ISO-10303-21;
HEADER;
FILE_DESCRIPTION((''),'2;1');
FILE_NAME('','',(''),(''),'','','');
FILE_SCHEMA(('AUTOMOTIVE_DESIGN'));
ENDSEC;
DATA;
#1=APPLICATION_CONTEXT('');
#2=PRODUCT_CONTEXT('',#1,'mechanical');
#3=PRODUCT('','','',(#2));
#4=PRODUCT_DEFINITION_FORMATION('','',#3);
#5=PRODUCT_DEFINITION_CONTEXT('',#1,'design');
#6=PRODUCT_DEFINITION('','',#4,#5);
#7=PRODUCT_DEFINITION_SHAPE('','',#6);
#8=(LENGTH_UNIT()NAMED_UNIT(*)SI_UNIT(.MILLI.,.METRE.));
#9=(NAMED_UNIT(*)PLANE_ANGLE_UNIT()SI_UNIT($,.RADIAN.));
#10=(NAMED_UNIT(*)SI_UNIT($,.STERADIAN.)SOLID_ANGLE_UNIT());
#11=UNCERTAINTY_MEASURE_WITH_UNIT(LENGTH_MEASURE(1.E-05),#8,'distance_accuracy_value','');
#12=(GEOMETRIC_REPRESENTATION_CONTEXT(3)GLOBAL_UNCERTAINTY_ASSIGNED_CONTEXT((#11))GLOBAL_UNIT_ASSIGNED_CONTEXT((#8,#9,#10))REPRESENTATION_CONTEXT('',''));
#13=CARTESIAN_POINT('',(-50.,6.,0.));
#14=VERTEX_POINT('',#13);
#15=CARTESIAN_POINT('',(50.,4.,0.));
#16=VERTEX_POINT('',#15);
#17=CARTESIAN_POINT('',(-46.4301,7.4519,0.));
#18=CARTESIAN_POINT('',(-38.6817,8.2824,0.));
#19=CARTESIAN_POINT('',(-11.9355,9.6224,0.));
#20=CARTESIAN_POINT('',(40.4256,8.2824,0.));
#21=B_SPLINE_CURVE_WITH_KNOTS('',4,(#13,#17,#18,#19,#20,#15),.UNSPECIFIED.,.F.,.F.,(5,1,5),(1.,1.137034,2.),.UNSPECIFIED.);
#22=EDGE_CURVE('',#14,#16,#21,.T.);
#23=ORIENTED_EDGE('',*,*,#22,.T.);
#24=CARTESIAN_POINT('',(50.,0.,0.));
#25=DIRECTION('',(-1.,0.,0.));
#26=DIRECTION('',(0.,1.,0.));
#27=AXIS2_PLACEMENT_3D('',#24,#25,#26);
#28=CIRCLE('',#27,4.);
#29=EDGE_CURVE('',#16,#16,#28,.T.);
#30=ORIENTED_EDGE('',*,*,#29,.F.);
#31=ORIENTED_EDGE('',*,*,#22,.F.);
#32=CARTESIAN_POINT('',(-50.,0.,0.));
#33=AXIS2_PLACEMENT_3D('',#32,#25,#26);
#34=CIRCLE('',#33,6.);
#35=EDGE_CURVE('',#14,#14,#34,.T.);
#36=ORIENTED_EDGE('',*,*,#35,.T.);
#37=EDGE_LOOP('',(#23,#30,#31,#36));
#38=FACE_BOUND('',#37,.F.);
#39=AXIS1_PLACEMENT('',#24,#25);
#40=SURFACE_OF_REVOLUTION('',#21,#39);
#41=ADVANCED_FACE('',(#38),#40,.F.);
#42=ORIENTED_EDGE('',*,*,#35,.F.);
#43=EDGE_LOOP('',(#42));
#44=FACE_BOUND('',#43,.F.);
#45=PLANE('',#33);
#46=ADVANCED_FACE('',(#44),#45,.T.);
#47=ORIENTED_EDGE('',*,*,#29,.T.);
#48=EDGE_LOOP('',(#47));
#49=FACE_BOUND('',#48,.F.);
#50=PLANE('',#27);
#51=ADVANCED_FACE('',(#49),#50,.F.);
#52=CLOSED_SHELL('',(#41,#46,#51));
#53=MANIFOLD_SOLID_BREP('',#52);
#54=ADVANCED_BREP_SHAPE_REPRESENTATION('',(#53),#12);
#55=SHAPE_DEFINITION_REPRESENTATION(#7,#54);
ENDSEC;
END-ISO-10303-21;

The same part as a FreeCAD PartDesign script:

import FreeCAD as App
import Part
import Sketcher
from FreeCAD import Vector

doc = App.newDocument("Part")
body = doc.addObject("PartDesign::Body", "Body")

sketch1 = body.newObject("Sketcher::SketchObject", "Sketch")
sketch1.AttachmentSupport = (doc.getObject("XY_Plane"), [""])
sketch1.MapMode = "FlatFace"
sketch1.addGeometry(Part.LineSegment(Vector(50, 0, 0), Vector(50, 4, 0)), False)
sketch1.addGeometry(Part.BSplineCurve([Vector(-50, 6, 0), Vector(-46.4301, 7.4519, 0), Vector(-38.6817, 8.2824, 0), Vector(-11.9355, 9.6224, 0), Vector(40.4256, 8.2824, 0), Vector(50, 4, 0)], [5, 1, 5], [1, 1.137034, 2], False, 4, [1, 1, 1, 1, 1, 1], False), False)
sketch1.addGeometry(Part.LineSegment(Vector(-50, 6, 0), Vector(-50, 0, 0)), False)
sketch1.addGeometry(Part.LineSegment(Vector(-50, 0, 0), Vector(50, 0, 0)), False)
sketch1.addConstraint(Sketcher.Constraint("Block", 1))
sketch1.addConstraint(Sketcher.Constraint("Coincident", 0, 2, 1, 2))
sketch1.addConstraint(Sketcher.Constraint("Coincident", 1, 1, 2, 1))
sketch1.addConstraint(Sketcher.Constraint("Coincident", 2, 2, 3, 1))
sketch1.addConstraint(Sketcher.Constraint("Coincident", 3, 2, 0, 1))
sketch1.addConstraint(Sketcher.Constraint("Vertical", 0))
sketch1.addConstraint(Sketcher.Constraint("Vertical", 2))
sketch1.addConstraint(Sketcher.Constraint("Horizontal", 3))
sketch1.addConstraint(Sketcher.Constraint("PointOnObject", 2, 2, -1))
revolution = body.newObject("PartDesign::Revolution", "Revolution")
revolution.Profile = sketch1
revolution.ReferenceAxis = (sketch1, ["H_Axis"])
revolution.Angle = 360

doc.recompute()
